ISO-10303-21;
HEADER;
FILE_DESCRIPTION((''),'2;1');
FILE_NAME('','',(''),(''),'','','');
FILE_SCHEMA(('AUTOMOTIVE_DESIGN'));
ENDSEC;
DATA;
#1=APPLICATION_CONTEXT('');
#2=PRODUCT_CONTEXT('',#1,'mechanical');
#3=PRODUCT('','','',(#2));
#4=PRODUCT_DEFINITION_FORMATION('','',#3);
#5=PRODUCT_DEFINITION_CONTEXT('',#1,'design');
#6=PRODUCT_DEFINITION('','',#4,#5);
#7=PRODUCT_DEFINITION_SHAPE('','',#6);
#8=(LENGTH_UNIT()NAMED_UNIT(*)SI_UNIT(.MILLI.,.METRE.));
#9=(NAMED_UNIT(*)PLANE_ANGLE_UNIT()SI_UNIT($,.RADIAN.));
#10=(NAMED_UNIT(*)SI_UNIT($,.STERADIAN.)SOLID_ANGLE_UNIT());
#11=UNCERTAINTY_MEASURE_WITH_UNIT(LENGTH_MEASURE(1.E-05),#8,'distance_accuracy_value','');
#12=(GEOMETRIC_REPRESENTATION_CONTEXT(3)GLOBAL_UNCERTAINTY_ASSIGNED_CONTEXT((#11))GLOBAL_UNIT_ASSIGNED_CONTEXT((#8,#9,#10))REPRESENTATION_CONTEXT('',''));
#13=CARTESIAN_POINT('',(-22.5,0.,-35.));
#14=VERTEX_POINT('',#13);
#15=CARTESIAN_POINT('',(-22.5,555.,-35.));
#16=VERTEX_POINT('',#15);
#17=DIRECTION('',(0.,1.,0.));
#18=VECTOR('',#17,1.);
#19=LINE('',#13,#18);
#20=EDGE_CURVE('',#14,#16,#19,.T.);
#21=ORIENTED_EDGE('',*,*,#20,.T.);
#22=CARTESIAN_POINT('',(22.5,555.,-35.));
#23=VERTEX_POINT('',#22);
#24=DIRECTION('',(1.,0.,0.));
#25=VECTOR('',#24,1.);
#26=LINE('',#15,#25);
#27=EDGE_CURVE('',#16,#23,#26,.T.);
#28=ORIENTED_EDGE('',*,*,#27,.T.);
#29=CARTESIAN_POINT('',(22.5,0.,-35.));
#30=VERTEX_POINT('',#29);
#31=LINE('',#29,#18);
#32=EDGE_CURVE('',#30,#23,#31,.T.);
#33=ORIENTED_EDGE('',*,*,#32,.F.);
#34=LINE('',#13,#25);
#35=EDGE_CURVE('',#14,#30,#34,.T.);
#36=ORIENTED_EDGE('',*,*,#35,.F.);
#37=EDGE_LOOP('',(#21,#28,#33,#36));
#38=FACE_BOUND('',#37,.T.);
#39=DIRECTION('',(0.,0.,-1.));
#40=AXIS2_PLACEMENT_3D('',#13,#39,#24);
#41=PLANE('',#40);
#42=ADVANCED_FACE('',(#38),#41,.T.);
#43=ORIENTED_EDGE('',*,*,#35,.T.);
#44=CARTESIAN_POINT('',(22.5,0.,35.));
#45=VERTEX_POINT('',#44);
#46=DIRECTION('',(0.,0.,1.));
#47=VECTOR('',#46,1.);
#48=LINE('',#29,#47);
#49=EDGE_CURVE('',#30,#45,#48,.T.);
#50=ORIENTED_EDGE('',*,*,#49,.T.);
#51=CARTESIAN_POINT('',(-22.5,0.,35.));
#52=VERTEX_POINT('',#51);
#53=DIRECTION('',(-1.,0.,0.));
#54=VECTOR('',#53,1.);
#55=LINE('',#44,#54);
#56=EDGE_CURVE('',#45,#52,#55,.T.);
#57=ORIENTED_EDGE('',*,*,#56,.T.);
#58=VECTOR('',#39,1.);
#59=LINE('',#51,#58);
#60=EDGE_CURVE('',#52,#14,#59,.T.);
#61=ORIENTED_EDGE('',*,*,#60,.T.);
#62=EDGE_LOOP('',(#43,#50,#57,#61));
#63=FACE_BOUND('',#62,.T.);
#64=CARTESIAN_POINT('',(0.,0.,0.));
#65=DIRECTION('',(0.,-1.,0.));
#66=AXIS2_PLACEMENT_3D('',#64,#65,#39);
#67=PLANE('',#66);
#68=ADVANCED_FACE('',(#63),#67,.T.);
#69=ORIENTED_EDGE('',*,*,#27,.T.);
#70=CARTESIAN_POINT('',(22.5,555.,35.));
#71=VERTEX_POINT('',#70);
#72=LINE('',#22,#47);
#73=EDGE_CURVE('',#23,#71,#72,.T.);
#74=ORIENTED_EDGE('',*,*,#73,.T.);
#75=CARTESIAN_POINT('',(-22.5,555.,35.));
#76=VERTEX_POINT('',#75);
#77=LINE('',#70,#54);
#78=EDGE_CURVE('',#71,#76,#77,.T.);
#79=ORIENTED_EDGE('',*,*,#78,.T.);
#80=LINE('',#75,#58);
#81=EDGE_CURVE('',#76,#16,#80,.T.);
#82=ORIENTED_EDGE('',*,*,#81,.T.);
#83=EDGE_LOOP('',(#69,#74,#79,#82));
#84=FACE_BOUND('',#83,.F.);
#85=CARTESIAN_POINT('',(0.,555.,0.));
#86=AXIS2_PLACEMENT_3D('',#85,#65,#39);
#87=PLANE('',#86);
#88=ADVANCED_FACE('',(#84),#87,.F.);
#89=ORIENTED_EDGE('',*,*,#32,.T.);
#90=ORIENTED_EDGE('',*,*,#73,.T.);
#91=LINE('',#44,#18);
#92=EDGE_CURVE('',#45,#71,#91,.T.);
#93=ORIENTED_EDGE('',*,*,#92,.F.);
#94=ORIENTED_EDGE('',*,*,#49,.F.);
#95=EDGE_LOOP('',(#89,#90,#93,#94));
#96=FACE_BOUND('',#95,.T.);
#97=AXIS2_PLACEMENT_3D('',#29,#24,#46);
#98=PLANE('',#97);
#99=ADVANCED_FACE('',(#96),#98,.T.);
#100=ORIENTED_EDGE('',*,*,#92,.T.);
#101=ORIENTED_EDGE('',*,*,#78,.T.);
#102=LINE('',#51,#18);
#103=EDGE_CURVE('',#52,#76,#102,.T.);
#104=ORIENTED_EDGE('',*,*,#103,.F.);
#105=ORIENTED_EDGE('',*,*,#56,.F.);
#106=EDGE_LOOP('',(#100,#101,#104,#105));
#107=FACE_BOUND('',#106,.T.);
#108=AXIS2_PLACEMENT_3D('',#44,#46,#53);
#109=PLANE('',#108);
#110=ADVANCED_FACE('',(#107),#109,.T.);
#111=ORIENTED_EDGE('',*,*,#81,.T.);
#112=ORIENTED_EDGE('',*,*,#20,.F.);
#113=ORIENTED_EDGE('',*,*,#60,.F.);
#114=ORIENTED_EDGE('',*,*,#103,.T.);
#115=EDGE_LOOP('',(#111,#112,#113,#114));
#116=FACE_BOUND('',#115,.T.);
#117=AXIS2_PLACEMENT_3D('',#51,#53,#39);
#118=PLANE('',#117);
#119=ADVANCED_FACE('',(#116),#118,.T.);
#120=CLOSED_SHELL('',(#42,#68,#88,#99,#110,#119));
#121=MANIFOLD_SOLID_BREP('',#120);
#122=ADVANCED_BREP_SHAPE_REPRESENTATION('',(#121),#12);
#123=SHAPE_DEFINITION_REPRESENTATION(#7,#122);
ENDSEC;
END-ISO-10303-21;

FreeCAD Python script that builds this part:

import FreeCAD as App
import Part
import Sketcher
Q = App.Units.Quantity

doc = App.newDocument("Part")
body = doc.addObject("PartDesign::Body", "Body")

sketch1 = body.newObject("Sketcher::SketchObject", "Sketch")
sketch1.AttachmentSupport = (doc.getObject("XZ_Plane"), [""])
sketch1.MapMode = "FlatFace"
sketch1.addGeometry([
    Part.LineSegment(App.Vector(-22.5, 35, 0), App.Vector(-22.5, -35, 0)),
    Part.LineSegment(App.Vector(-22.5, -35, 0), App.Vector(22.5, -35, 0)),
    Part.LineSegment(App.Vector(22.5, -35, 0), App.Vector(22.5, 35, 0)),
    Part.LineSegment(App.Vector(22.5, 35, 0), App.Vector(-22.5, 35, 0)),
], False)
sketch1.addConstraint([
    Sketcher.Constraint("Coincident", 0, 2, 1, 1),
    Sketcher.Constraint("Coincident", 1, 2, 2, 1),
    Sketcher.Constraint("Coincident", 2, 2, 3, 1),
    Sketcher.Constraint("Coincident", 3, 2, 0, 1),
    Sketcher.Constraint("Vertical", 0),
    Sketcher.Constraint("Horizontal", 1),
    Sketcher.Constraint("Vertical", 2),
    Sketcher.Constraint("Horizontal", 3),
    Sketcher.Constraint("Symmetric", 0, 2, 2, 2, -1, 1),
    Sketcher.Constraint("DistanceX", 1, 1, 1, 2, Q("45 mm")),
    Sketcher.Constraint("DistanceY", 0, 2, 0, 1, Q("70 mm")),
])
pad1 = body.newObject("PartDesign::Pad", "Pad")
pad1.Profile = sketch1
pad1.Length = 555
pad1.Reversed = True

doc.recompute()
